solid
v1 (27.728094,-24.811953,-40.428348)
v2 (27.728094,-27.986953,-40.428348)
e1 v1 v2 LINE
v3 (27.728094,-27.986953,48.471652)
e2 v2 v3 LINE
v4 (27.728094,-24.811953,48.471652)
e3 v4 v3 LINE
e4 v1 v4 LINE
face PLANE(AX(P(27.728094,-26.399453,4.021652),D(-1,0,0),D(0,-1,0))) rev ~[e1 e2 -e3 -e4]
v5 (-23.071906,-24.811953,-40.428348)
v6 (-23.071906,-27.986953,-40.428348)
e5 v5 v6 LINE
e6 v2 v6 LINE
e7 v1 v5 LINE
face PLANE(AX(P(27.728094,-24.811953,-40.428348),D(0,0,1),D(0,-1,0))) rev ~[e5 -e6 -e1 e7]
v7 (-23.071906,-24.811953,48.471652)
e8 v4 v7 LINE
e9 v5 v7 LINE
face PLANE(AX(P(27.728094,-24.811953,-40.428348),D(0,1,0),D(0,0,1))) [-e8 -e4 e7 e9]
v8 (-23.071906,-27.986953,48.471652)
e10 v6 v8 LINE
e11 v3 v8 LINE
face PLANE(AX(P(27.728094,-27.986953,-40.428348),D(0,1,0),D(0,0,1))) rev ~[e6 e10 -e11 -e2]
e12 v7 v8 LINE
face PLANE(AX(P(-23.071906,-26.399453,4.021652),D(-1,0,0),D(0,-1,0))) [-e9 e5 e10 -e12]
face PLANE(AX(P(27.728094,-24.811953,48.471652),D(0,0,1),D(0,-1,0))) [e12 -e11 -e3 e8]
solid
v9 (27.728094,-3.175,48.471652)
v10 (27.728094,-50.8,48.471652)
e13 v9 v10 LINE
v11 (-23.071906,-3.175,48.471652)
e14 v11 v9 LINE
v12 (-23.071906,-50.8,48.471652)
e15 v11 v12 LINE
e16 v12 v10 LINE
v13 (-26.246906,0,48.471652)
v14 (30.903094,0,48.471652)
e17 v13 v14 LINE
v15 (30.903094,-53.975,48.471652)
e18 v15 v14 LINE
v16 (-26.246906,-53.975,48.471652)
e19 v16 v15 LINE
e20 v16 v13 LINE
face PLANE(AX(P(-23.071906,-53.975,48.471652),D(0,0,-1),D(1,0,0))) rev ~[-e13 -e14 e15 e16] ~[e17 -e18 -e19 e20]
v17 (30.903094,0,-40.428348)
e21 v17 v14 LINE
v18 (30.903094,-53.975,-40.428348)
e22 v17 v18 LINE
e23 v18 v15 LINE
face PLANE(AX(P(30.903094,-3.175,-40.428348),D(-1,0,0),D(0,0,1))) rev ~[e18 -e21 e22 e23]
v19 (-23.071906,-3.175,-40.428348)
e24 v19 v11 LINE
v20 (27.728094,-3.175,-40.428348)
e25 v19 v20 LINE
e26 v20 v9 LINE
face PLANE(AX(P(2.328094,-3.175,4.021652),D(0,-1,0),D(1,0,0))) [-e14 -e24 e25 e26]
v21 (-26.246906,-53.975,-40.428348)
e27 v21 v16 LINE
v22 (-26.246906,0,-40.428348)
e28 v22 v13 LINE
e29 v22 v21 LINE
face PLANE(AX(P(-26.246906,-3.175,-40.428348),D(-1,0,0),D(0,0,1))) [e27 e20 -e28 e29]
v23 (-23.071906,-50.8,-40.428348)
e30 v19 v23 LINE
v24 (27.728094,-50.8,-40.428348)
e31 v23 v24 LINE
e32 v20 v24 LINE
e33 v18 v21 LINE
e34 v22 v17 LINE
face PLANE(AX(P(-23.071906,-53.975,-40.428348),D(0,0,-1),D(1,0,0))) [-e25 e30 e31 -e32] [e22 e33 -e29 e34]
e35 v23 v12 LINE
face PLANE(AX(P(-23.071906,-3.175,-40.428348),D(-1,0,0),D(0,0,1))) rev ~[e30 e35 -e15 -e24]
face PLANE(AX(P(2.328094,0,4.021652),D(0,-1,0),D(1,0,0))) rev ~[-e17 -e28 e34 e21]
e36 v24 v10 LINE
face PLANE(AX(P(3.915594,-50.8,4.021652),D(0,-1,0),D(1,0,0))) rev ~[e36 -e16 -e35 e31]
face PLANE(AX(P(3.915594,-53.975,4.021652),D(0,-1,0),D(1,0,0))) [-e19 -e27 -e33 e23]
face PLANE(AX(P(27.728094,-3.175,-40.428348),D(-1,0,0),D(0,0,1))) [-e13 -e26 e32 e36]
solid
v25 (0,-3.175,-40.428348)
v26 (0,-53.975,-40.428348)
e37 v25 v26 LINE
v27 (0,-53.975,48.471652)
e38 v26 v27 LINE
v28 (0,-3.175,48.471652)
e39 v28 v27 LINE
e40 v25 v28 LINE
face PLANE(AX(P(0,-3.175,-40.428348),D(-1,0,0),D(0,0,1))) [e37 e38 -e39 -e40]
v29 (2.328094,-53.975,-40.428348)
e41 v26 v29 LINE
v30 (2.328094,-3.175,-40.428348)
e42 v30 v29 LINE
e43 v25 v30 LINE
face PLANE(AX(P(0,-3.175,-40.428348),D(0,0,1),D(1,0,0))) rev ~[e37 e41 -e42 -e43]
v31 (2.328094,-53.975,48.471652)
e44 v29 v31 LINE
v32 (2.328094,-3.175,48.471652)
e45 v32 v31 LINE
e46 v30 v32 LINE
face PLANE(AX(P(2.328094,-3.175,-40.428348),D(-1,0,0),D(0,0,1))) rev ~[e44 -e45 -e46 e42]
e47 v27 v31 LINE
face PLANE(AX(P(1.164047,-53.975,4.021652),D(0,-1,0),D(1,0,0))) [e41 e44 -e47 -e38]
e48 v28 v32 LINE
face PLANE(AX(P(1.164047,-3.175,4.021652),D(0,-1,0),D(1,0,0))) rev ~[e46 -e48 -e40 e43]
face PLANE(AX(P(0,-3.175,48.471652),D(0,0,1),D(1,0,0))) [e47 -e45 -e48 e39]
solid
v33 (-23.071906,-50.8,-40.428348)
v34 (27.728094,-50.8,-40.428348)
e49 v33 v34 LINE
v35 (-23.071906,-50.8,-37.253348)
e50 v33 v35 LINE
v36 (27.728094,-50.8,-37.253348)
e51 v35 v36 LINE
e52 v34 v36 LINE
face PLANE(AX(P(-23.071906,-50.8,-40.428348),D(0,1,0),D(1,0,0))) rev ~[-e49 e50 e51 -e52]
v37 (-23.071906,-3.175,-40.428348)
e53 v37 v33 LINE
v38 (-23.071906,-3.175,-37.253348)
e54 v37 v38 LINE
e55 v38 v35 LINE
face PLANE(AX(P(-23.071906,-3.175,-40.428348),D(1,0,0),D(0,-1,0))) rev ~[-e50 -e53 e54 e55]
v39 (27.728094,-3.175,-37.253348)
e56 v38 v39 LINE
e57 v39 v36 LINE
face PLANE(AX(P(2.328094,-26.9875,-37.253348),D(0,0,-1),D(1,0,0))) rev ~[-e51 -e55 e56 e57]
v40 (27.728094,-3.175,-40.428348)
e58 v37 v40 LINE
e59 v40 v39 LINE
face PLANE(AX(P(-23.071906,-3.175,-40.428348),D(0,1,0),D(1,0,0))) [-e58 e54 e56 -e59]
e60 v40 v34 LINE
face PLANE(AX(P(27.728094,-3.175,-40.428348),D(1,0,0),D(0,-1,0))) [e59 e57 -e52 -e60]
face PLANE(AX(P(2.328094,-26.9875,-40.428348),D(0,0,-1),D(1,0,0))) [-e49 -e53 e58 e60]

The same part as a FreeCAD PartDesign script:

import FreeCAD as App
import Part
import Sketcher
Q = App.Units.Quantity


def add_polygon(sketch, points):
    """Adds a closed chain of lines whose ends are joined by coincident constraints."""
    first, n = sketch.GeometryCount, len(points)
    for a, b in zip(points, points[1:] + points[:1]):
        sketch.addGeometry(Part.LineSegment(App.Vector(*a, 0), App.Vector(*b, 0)), False)
    for i in range(n):
        sketch.addConstraint(Sketcher.Constraint("Coincident", first + i, 2, first + (i + 1) % n, 1))

doc = App.newDocument("Part")
body = doc.addObject("PartDesign::Body", "Body")

# Sketch on XZ plane
sketch1 = body.newObject("Sketcher::SketchObject", "Sketch")
sketch1.AttachmentSupport = (doc.getObject("XZ_Plane"), [""])
sketch1.MapMode = "FlatFace"
add_polygon(sketch1, [(-26, 48), (-26, -40), (31, -40), (31, 48)])  # lines 0-3
sketch1.addConstraint([
    Sketcher.Constraint("Vertical", 0),
    Sketcher.Constraint("Horizontal", 1),
    Sketcher.Constraint("Vertical", 2),
    Sketcher.Constraint("Horizontal", 3),
    Sketcher.Constraint("DistanceY", 0, 2, 0, 1, Q("3.5 in")),
    Sketcher.Constraint("DistanceX", 1, 1, 1, 2, Q("2.25 in")),
    Sketcher.Constraint("DistanceY", 0, 2, -1, 1, 40.428348),
    Sketcher.Constraint("DistanceX", 0, 2, -1, 1, 26.246906),
])
pad1 = body.newObject("PartDesign::Pad", "Pad")
pad1.Profile = sketch1
pad1.Length = Q("0.125 in")

# Sketch on XZ plane
sketch2 = body.newObject("Sketcher::SketchObject", "Sketch001")
sketch2.AttachmentSupport = (doc.getObject("XZ_Plane"), [""])
sketch2.MapMode = "FlatFace"
sketch2.AttachmentOffset = App.Placement(App.Vector(0, 0, 0.125 * 25.4), App.Rotation())
add_polygon(sketch2, [(-26.2, 48.5), (-26.2, -40.4), (-23.1, -40.4), (-23.1, 48.5)])  # lines 0-3
sketch2.addConstraint([
    Sketcher.Constraint("Vertical", 0),
    Sketcher.Constraint("Horizontal", 1),
    Sketcher.Constraint("Vertical", 2),
    Sketcher.Constraint("Horizontal", 3),
    Sketcher.Constraint("DistanceY", 0, 2, 0, 1, Q("3.5 in")),
    Sketcher.Constraint("DistanceX", 1, 1, 1, 2, Q("0.125 in")),
    Sketcher.Constraint("DistanceY", 0, 2, -1, 1, 40.428348),
    Sketcher.Constraint("DistanceX", 0, 2, -1, 1, 26.246906),
])
pad2 = body.newObject("PartDesign::Pad", "Pad001")
pad2.Profile = sketch2
pad2.Length = Q("2 in")

# Sketch on XZ plane
sketch3 = body.newObject("Sketcher::SketchObject", "Sketch002")
sketch3.AttachmentSupport = (doc.getObject("XZ_Plane"), [""])
sketch3.MapMode = "FlatFace"
sketch3.AttachmentOffset = App.Placement(App.Vector(0, 0, 0.125 * 25.4), App.Rotation())
add_polygon(sketch3, [(27.7, 48.5), (27.7, -40.4), (30.9, -40.4), (30.9, 48.5)])  # lines 0-3
sketch3.addConstraint([
    Sketcher.Constraint("Vertical", 0),
    Sketcher.Constraint("Horizontal", 1),
    Sketcher.Constraint("Vertical", 2),
    Sketcher.Constraint("Horizontal", 3),
    Sketcher.Constraint("DistanceY", 0, 2, 0, 1, Q("3.5 in")),
    Sketcher.Constraint("DistanceX", 1, 1, 1, 2, Q("0.125 in")),
    Sketcher.Constraint("DistanceY", 0, 2, -1, 1, 40.428348),
    Sketcher.Constraint("DistanceX", -1, 1, 0, 2, 27.728094),
])
pad3 = body.newObject("PartDesign::Pad", "Pad002")
pad3.Profile = sketch3
pad3.Length = Q("2 in")

# Sketch on XZ plane
sketch4 = body.newObject("Sketcher::SketchObject", "Sketch003")
sketch4.AttachmentSupport = (doc.getObject("XZ_Plane"), [""])
sketch4.MapMode = "FlatFace"
sketch4.AttachmentOffset = App.Placement(App.Vector(0, 0, 2.125 * 25.4), App.Rotation())
add_polygon(sketch4, [(-23, 48), (-23, -40), (31, -40), (31, 48)])  # lines 0-3
sketch4.addConstraint([
    Sketcher.Constraint("Vertical", 0),
    Sketcher.Constraint("Horizontal", 1),
    Sketcher.Constraint("Vertical", 2),
    Sketcher.Constraint("Horizontal", 3),
    Sketcher.Constraint("DistanceY", 0, 2, 0, 1, Q("3.5 in")),
    Sketcher.Constraint("DistanceX", 1, 1, 1, 2, Q("2.125 in")),
    Sketcher.Constraint("DistanceY", 0, 2, -1, 1, 40.428348),
    Sketcher.Constraint("DistanceX", 0, 2, -1, 1, 23.071906),
])
pad4 = body.newObject("PartDesign::Pad", "Pad003")
pad4.Profile = sketch4
pad4.Length = Q("0.125 in")
pad4.Reversed = True
body2 = doc.addObject("PartDesign::Body", "Body001")

# Sketch on XY plane
sketch5 = body2.newObject("Sketcher::SketchObject", "Sketch004")
sketch5.AttachmentSupport = (doc.getObject("XY_Plane001"), [""])
sketch5.MapMode = "FlatFace"
sketch5.AttachmentOffset = App.Placement(App.Vector(0, 0, -40.428348), App.Rotation())
add_polygon(sketch5, [(-23, -51), (-23, -3), (28, -3), (28, -51)])  # lines 0-3
sketch5.addConstraint([
    Sketcher.Constraint("Vertical", 0),
    Sketcher.Constraint("Horizontal", 1),
    Sketcher.Constraint("Vertical", 2),
    Sketcher.Constraint("Horizontal", 3),
    Sketcher.Constraint("DistanceX", 1, 1, 1, 2, Q("2 in")),
    Sketcher.Constraint("DistanceY", 2, 2, -1, 1, Q("2 in")),
    Sketcher.Constraint("DistanceY", 0, 1, 0, 2, Q("1.875 in")),
    Sketcher.Constraint("DistanceX", 0, 2, -1, 1, 23.071906),
])
pad5 = body2.newObject("PartDesign::Pad", "Pad004")
pad5.Profile = sketch5
pad5.Length = Q("0.125 in")
body3 = doc.addObject("PartDesign::Body", "Body002")

# Sketch on XZ plane
sketch6 = body3.newObject("Sketcher::SketchObject", "Sketch005")
sketch6.AttachmentSupport = (doc.getObject("XZ_Plane002"), [""])
sketch6.MapMode = "FlatFace"
sketch6.AttachmentOffset = App.Placement(App.Vector(0, 0, 0.125 * 25.4), App.Rotation())
add_polygon(sketch6, [(0, 48.5), (0, -40.4), (2.3, -40.4), (2.3, 48.5)])  # lines 0-3
sketch6.addConstraint([
    Sketcher.Constraint("Vertical", 0),
    Sketcher.Constraint("Horizontal", 1),
    Sketcher.Constraint("Vertical", 2),
    Sketcher.Constraint("Horizontal", 3),
    Sketcher.Constraint("PointOnObject", 0, 2, -2),
    Sketcher.Constraint("DistanceY", 0, 2, 0, 1, Q("3.5 in")),
    Sketcher.Constraint("DistanceX", 1, 1, 1, 2, 2.328094),
    Sketcher.Constraint("DistanceY", 0, 2, -1, 1, 40.428348),
])
pad6 = body3.newObject("PartDesign::Pad", "Pad005")
pad6.Profile = sketch6
pad6.Length = Q("2 in")
body4 = doc.addObject("PartDesign::Body", "Body003")

# Sketch on YZ plane
sketch7 = body4.newObject("Sketcher::SketchObject", "Sketch006")
sketch7.AttachmentSupport = (doc.getObject("YZ_Plane003"), [""])
sketch7.MapMode = "FlatFace"
sketch7.AttachmentOffset = App.Placement(App.Vector(0, 0, 27.728094), App.Rotation())
add_polygon(sketch7, [(-24.8, 48.5), (-24.8, -40.4), (-28, -40.4), (-28, 48.5)])  # lines 0-3
sketch7.addConstraint([
    Sketcher.Constraint("Vertical", 0),
    Sketcher.Constraint("Horizontal", 1),
    Sketcher.Constraint("Vertical", 2),
    Sketcher.Constraint("Horizontal", 3),
    Sketcher.Constraint("DistanceY", 0, 2, 0, 1, Q("3.5 in")),
    Sketcher.Constraint("DistanceX", 1, 2, 1, 1, Q("0.125 in")),
    Sketcher.Constraint("DistanceY", 0, 2, -1, 1, 40.428348),
    Sketcher.Constraint("DistanceX", 0, 2, -1, 1, 24.811953),
])
pad7 = body4.newObject("PartDesign::Pad", "Pad006")
pad7.Profile = sketch7
pad7.Length = Q("2 in")
pad7.Reversed = True

doc.recompute()
